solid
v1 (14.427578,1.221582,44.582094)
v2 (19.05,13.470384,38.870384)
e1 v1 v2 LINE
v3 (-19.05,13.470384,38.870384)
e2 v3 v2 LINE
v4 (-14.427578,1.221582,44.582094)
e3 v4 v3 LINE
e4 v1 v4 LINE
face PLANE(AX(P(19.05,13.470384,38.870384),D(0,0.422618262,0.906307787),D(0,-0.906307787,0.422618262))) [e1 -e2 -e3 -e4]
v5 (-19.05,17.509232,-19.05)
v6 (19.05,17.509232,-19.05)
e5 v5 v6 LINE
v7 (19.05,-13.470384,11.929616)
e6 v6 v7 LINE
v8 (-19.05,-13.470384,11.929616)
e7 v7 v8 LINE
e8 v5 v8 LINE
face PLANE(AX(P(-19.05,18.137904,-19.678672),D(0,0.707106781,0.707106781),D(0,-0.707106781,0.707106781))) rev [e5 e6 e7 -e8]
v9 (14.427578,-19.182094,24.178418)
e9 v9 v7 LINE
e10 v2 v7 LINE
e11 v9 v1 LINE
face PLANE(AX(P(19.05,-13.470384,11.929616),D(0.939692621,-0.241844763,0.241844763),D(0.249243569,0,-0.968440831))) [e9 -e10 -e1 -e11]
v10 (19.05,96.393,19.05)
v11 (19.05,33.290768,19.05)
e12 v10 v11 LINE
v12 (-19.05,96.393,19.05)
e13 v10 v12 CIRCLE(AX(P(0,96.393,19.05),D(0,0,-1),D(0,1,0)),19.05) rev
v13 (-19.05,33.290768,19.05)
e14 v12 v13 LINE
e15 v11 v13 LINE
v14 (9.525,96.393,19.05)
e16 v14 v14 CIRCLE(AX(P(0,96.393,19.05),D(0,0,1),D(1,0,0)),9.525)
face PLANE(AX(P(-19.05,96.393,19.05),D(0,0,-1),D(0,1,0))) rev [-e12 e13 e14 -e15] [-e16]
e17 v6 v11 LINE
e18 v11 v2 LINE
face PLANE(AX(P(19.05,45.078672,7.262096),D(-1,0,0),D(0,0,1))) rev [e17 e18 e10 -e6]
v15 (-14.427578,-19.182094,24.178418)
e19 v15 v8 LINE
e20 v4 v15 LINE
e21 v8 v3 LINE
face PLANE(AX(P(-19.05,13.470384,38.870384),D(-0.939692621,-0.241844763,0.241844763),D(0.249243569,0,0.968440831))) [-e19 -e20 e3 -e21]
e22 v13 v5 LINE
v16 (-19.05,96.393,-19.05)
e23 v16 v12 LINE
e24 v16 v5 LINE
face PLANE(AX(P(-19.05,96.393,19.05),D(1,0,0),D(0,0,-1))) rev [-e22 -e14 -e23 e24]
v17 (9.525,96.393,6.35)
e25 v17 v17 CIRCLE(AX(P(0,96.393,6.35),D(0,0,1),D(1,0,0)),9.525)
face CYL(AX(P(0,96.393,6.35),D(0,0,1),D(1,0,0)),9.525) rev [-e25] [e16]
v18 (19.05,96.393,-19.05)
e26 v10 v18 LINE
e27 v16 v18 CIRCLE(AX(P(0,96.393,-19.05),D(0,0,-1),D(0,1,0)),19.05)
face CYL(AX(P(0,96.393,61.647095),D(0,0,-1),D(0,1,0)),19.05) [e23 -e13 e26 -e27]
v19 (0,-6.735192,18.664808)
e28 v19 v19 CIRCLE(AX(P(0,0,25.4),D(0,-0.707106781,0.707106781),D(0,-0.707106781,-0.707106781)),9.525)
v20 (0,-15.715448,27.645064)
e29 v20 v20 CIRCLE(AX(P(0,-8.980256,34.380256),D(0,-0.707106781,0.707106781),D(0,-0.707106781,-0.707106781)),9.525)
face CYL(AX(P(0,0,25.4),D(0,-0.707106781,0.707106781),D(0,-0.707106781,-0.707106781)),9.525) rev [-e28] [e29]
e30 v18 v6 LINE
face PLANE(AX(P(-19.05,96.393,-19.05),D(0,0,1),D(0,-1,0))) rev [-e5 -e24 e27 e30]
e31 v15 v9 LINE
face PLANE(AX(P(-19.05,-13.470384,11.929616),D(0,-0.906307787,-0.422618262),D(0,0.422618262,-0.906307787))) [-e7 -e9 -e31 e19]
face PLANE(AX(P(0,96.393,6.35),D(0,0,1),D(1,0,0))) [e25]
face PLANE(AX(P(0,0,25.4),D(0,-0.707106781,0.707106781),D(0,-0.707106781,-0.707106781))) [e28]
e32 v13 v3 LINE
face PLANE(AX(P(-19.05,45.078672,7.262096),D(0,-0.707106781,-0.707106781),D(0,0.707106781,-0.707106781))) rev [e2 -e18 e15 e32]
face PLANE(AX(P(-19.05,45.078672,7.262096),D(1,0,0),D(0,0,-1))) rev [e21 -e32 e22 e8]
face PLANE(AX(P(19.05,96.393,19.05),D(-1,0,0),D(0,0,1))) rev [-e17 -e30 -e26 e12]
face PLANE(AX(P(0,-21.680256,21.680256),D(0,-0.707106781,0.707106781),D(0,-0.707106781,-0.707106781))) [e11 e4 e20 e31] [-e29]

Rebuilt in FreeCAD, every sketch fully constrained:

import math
import FreeCAD as App
import Part
import Sketcher

V = App.Vector
Q = App.Units.Quantity

doc = App.newDocument("Part")
body = doc.addObject("PartDesign::Body", "Body")

sketch1 = doc.addObject("Sketcher::SketchObject", "Sketch")
body.addObject(sketch1)
sketch1.AttachmentSupport = (doc.XZ_Plane, [""])
sketch1.MapMode = "FlatFace"
sketch1.AttachmentOffset = App.Placement(V(0, 0, -3.795 * 25.4), App.Rotation())
sketch1.addGeometry(Part.LineSegment(V(-19, -19, 0), V(-19, 19, 0)), False)
sketch1.addGeometry(Part.LineSegment(V(-19, 19, 0), V(19, 19, 0)), False)
sketch1.addGeometry(Part.LineSegment(V(19, 19, 0), V(19, -19, 0)), False)
sketch1.addGeometry(Part.LineSegment(V(19, -19, 0), V(-19, -19, 0)), False)
sketch1.addConstraint(Sketcher.Constraint("Coincident", 0, 2, 1, 1))
sketch1.addConstraint(Sketcher.Constraint("Coincident", 1, 2, 2, 1))
sketch1.addConstraint(Sketcher.Constraint("Coincident", 2, 2, 3, 1))
sketch1.addConstraint(Sketcher.Constraint("Coincident", 3, 2, 0, 1))
sketch1.addConstraint(Sketcher.Constraint("Vertical", 0))
sketch1.addConstraint(Sketcher.Constraint("Horizontal", 1))
sketch1.addConstraint(Sketcher.Constraint("Vertical", 2))
sketch1.addConstraint(Sketcher.Constraint("Horizontal", 3))
sketch1.addConstraint(Sketcher.Constraint("Symmetric", 0, 2, 2, 2, -1, 1))
sketch1.addConstraint(Sketcher.Constraint("Equal", 3, 0))
sketch1.addConstraint(Sketcher.Constraint("DistanceX", 1, 1, 1, 2, Q("1.5 in")))

sketch2 = doc.addObject("Sketcher::SketchObject", "Sketch001")
body.addObject(sketch2)
sketch2.AttachmentSupport = (doc.YZ_Plane, [""])
sketch2.MapMode = "FlatFace"
sketch2.addGeometry(Part.LineSegment(V(96, 0, 0), V(25, 0, 0)), False)
sketch2.addGeometry(Part.LineSegment(V(25, 0, 0), V(0, 25, 0)), False)
sketch2.addConstraint(Sketcher.Constraint("Coincident", 0, 2, 1, 1))
sketch2.addConstraint(Sketcher.Constraint("Horizontal", 0))
sketch2.addConstraint(Sketcher.Constraint("PointOnObject", 0, 1, -1))
sketch2.addConstraint(Sketcher.Constraint("PointOnObject", 1, 2, -2))
sketch2.addConstraint(Sketcher.Constraint("DistanceX", -1, 1, 0, 2, Q("1 in")))
sketch2.addConstraint(Sketcher.Constraint("DistanceY", -1, 1, 1, 2, Q("1 in")))
sketch2.addConstraint(Sketcher.Constraint("DistanceX", 0, 2, 0, 1, Q("2.795 in")))
doc.recompute()

additivepipe = doc.addObject("PartDesign::AdditivePipe", "AdditivePipe")
body.addObject(additivepipe)
additivepipe.Profile = sketch1
additivepipe.Spine = (sketch2, ["Edge1", "Edge2"])
additivepipe.Transition = "Right corner"

sketch3 = doc.addObject("Sketcher::SketchObject", "Sketch002")
body.addObject(sketch3)
sketch3.Placement = App.Placement(V(0, -12.7, 12.7), App.Rotation(V(1, 0, 0), V(0, 0.707106781, 0.707106781), V(0, -0.707106781, 0.707106781), "ZXY"))
sketch3.addGeometry(Part.LineSegment(V(-19, 37, 0), V(-19, -1, 0)), False)
sketch3.addGeometry(Part.LineSegment(V(-19, -1, 0), V(19, -1, 0)), False)
sketch3.addGeometry(Part.LineSegment(V(19, -1, 0), V(19, 37, 0)), False)
sketch3.addGeometry(Part.LineSegment(V(19, 37, 0), V(-19, 37, 0)), False)
sketch3.addConstraint(Sketcher.Constraint("Coincident", 0, 2, 1, 1))
sketch3.addConstraint(Sketcher.Constraint("Coincident", 1, 2, 2, 1))
sketch3.addConstraint(Sketcher.Constraint("Coincident", 2, 2, 3, 1))
sketch3.addConstraint(Sketcher.Constraint("Coincident", 3, 2, 0, 1))
sketch3.addConstraint(Sketcher.Constraint("Vertical", 0))
sketch3.addConstraint(Sketcher.Constraint("Horizontal", 1))
sketch3.addConstraint(Sketcher.Constraint("Vertical", 2))
sketch3.addConstraint(Sketcher.Constraint("Horizontal", 3))
sketch3.addConstraint(Sketcher.Constraint("Equal", 3, 0))
sketch3.addConstraint(Sketcher.Constraint("DistanceX", 1, 1, 1, 2, Q("1.5 in")))
sketch3.addConstraint(Sketcher.Constraint("DistanceX", 0, 2, -1, 1, Q("0.75 in")))
sketch3.addConstraint(Sketcher.Constraint("DistanceY", 0, 2, -1, 1, 1.089488))
pad1 = doc.addObject("PartDesign::Pad", "Pad")
body.addObject(pad1)
pad1.Profile = sketch3
pad1.Length = Q("0.5 in")
pad1.TaperAngle = -20

sketch4 = doc.addObject("Sketcher::SketchObject", "Sketch003")
body.addObject(sketch4)
sketch4.AttachmentSupport = (doc.XY_Plane, [""])
sketch4.MapMode = "FlatFace"
sketch4.AttachmentOffset = App.Placement(V(0, 0, -0.75 * 25.4), App.Rotation())
sketch4.addGeometry(Part.LineSegment(V(19, 96, 0), V(-19, 96, 0)), False)
sketch4.addGeometry(Part.ArcOfCircle(Part.Circle(V(0, 96, 0), V(0, 0, 1), 19), math.radians(0), math.radians(180)), False)
sketch4.addConstraint(Sketcher.Constraint("Coincident", 0, 1, 1, 1))
sketch4.addConstraint(Sketcher.Constraint("Coincident", 1, 2, 0, 2))
sketch4.addConstraint(Sketcher.Constraint("Horizontal", 0))
sketch4.addConstraint(Sketcher.Constraint("PointOnObject", 1, 3, -2))
sketch4.addConstraint(Sketcher.Constraint("Horizontal", 1, 3, 0, 1))
sketch4.addConstraint(Sketcher.Constraint("Radius", 1, Q("0.75 in")))
sketch4.addConstraint(Sketcher.Constraint("DistanceY", -1, 1, 1, 3, Q("3.795 in")))
pad2 = doc.addObject("PartDesign::Pad", "Pad001")
body.addObject(pad2)
pad2.Profile = sketch4
pad2.Length = Q("1.5 in")

sketch5 = doc.addObject("Sketcher::SketchObject", "Sketch004")
body.addObject(sketch5)
sketch5.AttachmentSupport = (doc.XY_Plane, [""])
sketch5.MapMode = "FlatFace"
sketch5.AttachmentOffset = App.Placement(V(0, 0, 0.75 * 25.4), App.Rotation())
sketch5.addGeometry(Part.Circle(V(0, 96, 0), V(0, 0, 1), 10), False)
sketch5.addConstraint(Sketcher.Constraint("PointOnObject", 0, 3, -2))
sketch5.addConstraint(Sketcher.Constraint("Diameter", 0, Q("0.75 in")))
sketch5.addConstraint(Sketcher.Constraint("DistanceY", -1, 1, 0, 3, Q("3.795 in")))
pocket1 = doc.addObject("PartDesign::Pocket", "Pocket")
body.addObject(pocket1)
pocket1.Profile = sketch5
pocket1.Length = Q("0.5 in")

sketch6 = doc.addObject("Sketcher::SketchObject", "Sketch005")
body.addObject(sketch6)
sketch6.Placement = App.Placement(V(0, -21.680256, 21.680256), App.Rotation(V(1, 0, 0), V(0, 0.707106781, 0.707106781), V(0, -0.707106781, 0.707106781), "ZXY"))
sketch6.addGeometry(Part.Circle(V(0, 18, 0), V(0, 0, 1), 10), False)
sketch6.addConstraint(Sketcher.Constraint("PointOnObject", 0, 3, -2))
sketch6.addConstraint(Sketcher.Constraint("Diameter", 0, Q("0.75 in")))
sketch6.addConstraint(Sketcher.Constraint("DistanceY", -1, 1, 0, 3, 17.960512))
pocket2 = doc.addObject("PartDesign::Pocket", "Pocket001")
body.addObject(pocket2)
pocket2.Profile = sketch6
pocket2.Length = Q("0.5 in")

doc.recompute()
